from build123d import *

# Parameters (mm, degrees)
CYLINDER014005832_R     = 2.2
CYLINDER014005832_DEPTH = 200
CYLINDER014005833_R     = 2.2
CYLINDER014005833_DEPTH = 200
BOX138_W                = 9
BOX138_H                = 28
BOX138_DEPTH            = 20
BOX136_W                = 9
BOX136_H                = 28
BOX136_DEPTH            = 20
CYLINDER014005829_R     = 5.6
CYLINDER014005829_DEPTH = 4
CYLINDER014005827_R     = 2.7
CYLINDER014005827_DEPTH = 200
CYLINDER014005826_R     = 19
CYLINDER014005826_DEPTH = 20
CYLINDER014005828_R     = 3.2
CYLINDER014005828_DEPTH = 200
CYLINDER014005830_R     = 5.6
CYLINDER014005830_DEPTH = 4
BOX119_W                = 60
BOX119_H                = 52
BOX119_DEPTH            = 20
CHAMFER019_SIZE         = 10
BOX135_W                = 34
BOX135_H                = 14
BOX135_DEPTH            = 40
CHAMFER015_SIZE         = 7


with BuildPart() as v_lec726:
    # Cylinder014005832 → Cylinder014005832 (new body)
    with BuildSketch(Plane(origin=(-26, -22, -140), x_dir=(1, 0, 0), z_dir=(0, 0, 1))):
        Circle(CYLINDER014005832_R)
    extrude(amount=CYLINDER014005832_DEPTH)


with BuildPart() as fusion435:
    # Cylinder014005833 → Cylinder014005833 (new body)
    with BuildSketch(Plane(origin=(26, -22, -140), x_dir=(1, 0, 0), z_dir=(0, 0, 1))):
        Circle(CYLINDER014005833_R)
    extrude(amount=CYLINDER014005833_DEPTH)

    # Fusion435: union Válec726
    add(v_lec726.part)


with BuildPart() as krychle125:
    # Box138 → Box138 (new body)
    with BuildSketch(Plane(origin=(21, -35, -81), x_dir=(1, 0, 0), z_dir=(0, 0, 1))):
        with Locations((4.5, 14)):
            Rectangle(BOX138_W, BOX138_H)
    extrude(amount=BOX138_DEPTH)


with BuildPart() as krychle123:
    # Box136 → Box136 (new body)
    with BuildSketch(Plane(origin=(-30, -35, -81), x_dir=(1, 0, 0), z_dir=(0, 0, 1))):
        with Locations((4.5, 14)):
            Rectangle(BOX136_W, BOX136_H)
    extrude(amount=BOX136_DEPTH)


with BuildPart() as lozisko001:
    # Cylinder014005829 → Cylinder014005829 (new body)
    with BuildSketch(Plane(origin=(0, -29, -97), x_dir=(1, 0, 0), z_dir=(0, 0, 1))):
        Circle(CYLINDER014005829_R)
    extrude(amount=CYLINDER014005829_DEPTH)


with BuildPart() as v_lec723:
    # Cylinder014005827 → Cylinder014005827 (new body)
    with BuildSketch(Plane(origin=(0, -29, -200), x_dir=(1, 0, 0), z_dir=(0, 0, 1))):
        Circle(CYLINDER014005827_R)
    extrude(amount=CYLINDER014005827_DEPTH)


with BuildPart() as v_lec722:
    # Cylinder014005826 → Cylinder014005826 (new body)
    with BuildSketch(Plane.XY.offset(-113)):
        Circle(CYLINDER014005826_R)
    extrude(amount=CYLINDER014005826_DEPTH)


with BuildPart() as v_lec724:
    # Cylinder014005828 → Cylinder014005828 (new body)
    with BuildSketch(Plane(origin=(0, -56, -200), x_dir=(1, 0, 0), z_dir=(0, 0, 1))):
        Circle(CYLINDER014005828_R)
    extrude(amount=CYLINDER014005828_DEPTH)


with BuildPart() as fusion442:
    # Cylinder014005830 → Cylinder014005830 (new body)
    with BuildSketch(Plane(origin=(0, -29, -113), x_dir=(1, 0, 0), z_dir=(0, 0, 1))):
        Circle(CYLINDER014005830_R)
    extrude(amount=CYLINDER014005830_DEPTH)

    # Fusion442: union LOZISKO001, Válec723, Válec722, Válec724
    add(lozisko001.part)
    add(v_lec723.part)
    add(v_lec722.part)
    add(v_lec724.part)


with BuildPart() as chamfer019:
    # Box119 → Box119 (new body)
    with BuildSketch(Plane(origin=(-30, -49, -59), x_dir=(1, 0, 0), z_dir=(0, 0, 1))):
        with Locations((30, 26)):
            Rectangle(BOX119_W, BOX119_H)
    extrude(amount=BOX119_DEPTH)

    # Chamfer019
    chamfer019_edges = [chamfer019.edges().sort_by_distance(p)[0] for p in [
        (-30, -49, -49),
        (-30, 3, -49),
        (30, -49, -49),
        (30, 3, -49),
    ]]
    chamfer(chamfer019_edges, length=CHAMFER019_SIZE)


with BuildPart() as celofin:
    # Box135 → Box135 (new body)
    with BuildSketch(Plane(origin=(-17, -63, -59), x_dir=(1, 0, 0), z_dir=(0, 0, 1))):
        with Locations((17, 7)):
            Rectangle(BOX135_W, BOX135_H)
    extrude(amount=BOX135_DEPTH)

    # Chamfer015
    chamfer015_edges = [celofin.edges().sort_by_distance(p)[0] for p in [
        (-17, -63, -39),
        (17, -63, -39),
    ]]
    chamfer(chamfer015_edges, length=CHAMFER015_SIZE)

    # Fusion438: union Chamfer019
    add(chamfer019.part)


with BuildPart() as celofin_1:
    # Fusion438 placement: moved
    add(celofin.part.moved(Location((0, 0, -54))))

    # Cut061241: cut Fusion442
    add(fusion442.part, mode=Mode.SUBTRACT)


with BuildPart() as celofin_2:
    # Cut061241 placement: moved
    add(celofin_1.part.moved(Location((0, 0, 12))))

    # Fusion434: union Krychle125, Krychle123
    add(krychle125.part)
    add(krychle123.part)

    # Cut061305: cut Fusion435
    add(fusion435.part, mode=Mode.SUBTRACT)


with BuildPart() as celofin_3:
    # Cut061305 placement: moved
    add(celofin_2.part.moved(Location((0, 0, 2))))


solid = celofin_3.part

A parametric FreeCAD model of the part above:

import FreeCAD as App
import Part
import Sketcher

V = App.Vector


def edges_at(feature, points):
    """Names of the edges that pass closest to the given points."""
    edges = feature.Shape.Edges
    near = lambda p: min(range(len(edges)), key=lambda i: edges[i].distToShape(Part.Vertex(*p))[0])
    return sorted({f"Edge{near(p) + 1}" for p in points})

doc = App.newDocument("Part")
body = doc.addObject("PartDesign::Body", "Body")

sketch1 = body.newObject("Sketcher::SketchObject", "Sketch")
sketch1.AttachmentSupport = (doc.getObject("XY_Plane"), [""])
sketch1.MapMode = "FlatFace"
sketch1.AttachmentOffset = App.Placement(V(0, 0, -140), App.Rotation())
sketch1.addGeometry(Part.Circle(V(-26, -22, 0), V(0, 0, 1), 2.2), False)
sketch1.addConstraint([
    Sketcher.Constraint("Diameter", 0, 4.4),
    Sketcher.Constraint("DistanceX", 0, 3, -1, 1, 26.0),
    Sketcher.Constraint("DistanceY", 0, 3, -1, 1, 22.0),
])
pad1 = body.newObject("PartDesign::Pad", "Pad")
pad1.Profile = sketch1
pad1.Length = 200
body2 = doc.addObject("PartDesign::Body", "Body001")
body2.AllowCompound = True

sketch2 = body2.newObject("Sketcher::SketchObject", "Sketch001")
sketch2.AttachmentSupport = (doc.getObject("XY_Plane001"), [""])
sketch2.MapMode = "FlatFace"
sketch2.AttachmentOffset = App.Placement(V(0, 0, -140), App.Rotation())
sketch2.addGeometry(Part.Circle(V(26, -22, 0), V(0, 0, 1), 2.2), False)
sketch2.addConstraint([
    Sketcher.Constraint("Diameter", 0, 4.4),
    Sketcher.Constraint("DistanceX", -1, 1, 0, 3, 26.0),
    Sketcher.Constraint("DistanceY", 0, 3, -1, 1, 22.0),
])
pad2 = body2.newObject("PartDesign::Pad", "Pad001")
pad2.Profile = sketch2
pad2.Length = 200
doc.recompute()

boolean = body2.newObject("PartDesign::Boolean", "Boolean")
boolean.Type = "Fuse"
boolean.addObjects([body])
body3 = doc.addObject("PartDesign::Body", "Body002")

sketch3 = body3.newObject("Sketcher::SketchObject", "Sketch002")
sketch3.AttachmentSupport = (doc.getObject("XY_Plane002"), [""])
sketch3.MapMode = "FlatFace"
sketch3.AttachmentOffset = App.Placement(V(0, 0, -81), App.Rotation())
sketch3.addGeometry([
    Part.LineSegment(V(21, -7, 0), V(21, -35, 0)),
    Part.LineSegment(V(21, -35, 0), V(30, -35, 0)),
    Part.LineSegment(V(30, -35, 0), V(30, -7, 0)),
    Part.LineSegment(V(30, -7, 0), V(21, -7, 0)),
], False)
sketch3.addConstraint([
    Sketcher.Constraint("Coincident", 0, 2, 1, 1),
    Sketcher.Constraint("Coincident", 1, 2, 2, 1),
    Sketcher.Constraint("Coincident", 2, 2, 3, 1),
    Sketcher.Constraint("Coincident", 3, 2, 0, 1),
    Sketcher.Constraint("Vertical", 0),
    Sketcher.Constraint("Horizontal", 1),
    Sketcher.Constraint("Vertical", 2),
    Sketcher.Constraint("Horizontal", 3),
    Sketcher.Constraint("DistanceX", 1, 1, 1, 2, 9.0),
    Sketcher.Constraint("DistanceY", 0, 2, 0, 1, 28.0),
    Sketcher.Constraint("DistanceX", -1, 1, 0, 2, 21.0),
    Sketcher.Constraint("DistanceY", 0, 2, -1, 1, 35.0),
])
pad3 = body3.newObject("PartDesign::Pad", "Pad002")
pad3.Profile = sketch3
pad3.Length = 20
body4 = doc.addObject("PartDesign::Body", "Body003")

sketch4 = body4.newObject("Sketcher::SketchObject", "Sketch003")
sketch4.AttachmentSupport = (doc.getObject("XY_Plane003"), [""])
sketch4.MapMode = "FlatFace"
sketch4.AttachmentOffset = App.Placement(V(0, 0, -81), App.Rotation())
sketch4.addGeometry([
    Part.LineSegment(V(-30, -7, 0), V(-30, -35, 0)),
    Part.LineSegment(V(-30, -35, 0), V(-21, -35, 0)),
    Part.LineSegment(V(-21, -35, 0), V(-21, -7, 0)),
    Part.LineSegment(V(-21, -7, 0), V(-30, -7, 0)),
], False)
sketch4.addConstraint([
    Sketcher.Constraint("Coincident", 0, 2, 1, 1),
    Sketcher.Constraint("Coincident", 1, 2, 2, 1),
    Sketcher.Constraint("Coincident", 2, 2, 3, 1),
    Sketcher.Constraint("Coincident", 3, 2, 0, 1),
    Sketcher.Constraint("Vertical", 0),
    Sketcher.Constraint("Horizontal", 1),
    Sketcher.Constraint("Vertical", 2),
    Sketcher.Constraint("Horizontal", 3),
    Sketcher.Constraint("DistanceX", 1, 1, 1, 2, 9.0),
    Sketcher.Constraint("DistanceY", 0, 2, 0, 1, 28.0),
    Sketcher.Constraint("DistanceX", 0, 2, -1, 1, 30.0),
    Sketcher.Constraint("DistanceY", 0, 2, -1, 1, 35.0),
])
pad4 = body4.newObject("PartDesign::Pad", "Pad003")
pad4.Profile = sketch4
pad4.Length = 20
body5 = doc.addObject("PartDesign::Body", "Body004")

sketch5 = body5.newObject("Sketcher::SketchObject", "Sketch004")
sketch5.AttachmentSupport = (doc.getObject("XY_Plane004"), [""])
sketch5.MapMode = "FlatFace"
sketch5.AttachmentOffset = App.Placement(V(0, 0, -97), App.Rotation())
sketch5.addGeometry(Part.Circle(V(0, -29, 0), V(0, 0, 1), 5.6), False)
sketch5.addConstraint([
    Sketcher.Constraint("PointOnObject", 0, 3, -2),
    Sketcher.Constraint("Diameter", 0, 11.2),
    Sketcher.Constraint("DistanceY", 0, 3, -1, 1, 29.0),
])
pad5 = body5.newObject("PartDesign::Pad", "Pad004")
pad5.Profile = sketch5
pad5.Length = 4
body6 = doc.addObject("PartDesign::Body", "Body005")

sketch6 = body6.newObject("Sketcher::SketchObject", "Sketch005")
sketch6.AttachmentSupport = (doc.getObject("XY_Plane005"), [""])
sketch6.MapMode = "FlatFace"
sketch6.AttachmentOffset = App.Placement(V(0, 0, -200), App.Rotation())
sketch6.addGeometry(Part.Circle(V(0, -29, 0), V(0, 0, 1), 2.7), False)
sketch6.addConstraint([
    Sketcher.Constraint("PointOnObject", 0, 3, -2),
    Sketcher.Constraint("Diameter", 0, 5.4),
    Sketcher.Constraint("DistanceY", 0, 3, -1, 1, 29.0),
])
pad6 = body6.newObject("PartDesign::Pad", "Pad005")
pad6.Profile = sketch6
pad6.Length = 200
body7 = doc.addObject("PartDesign::Body", "Body006")

sketch7 = body7.newObject("Sketcher::SketchObject", "Sketch006")
sketch7.AttachmentSupport = (doc.getObject("XY_Plane006"), [""])
sketch7.MapMode = "FlatFace"
sketch7.AttachmentOffset = App.Placement(V(0, 0, -113), App.Rotation())
sketch7.addGeometry(Part.Circle(V(0, 0, 0), V(0, 0, 1), 19), False)
sketch7.addConstraint([
    Sketcher.Constraint("Coincident", 0, 3, -1, 1),
    Sketcher.Constraint("Diameter", 0, 38.0),
])
pad7 = body7.newObject("PartDesign::Pad", "Pad006")
pad7.Profile = sketch7
pad7.Length = 20
body8 = doc.addObject("PartDesign::Body", "Body007")

sketch8 = body8.newObject("Sketcher::SketchObject", "Sketch007")
sketch8.AttachmentSupport = (doc.getObject("XY_Plane007"), [""])
sketch8.MapMode = "FlatFace"
sketch8.AttachmentOffset = App.Placement(V(0, 0, -200), App.Rotation())
sketch8.addGeometry(Part.Circle(V(0, -56, 0), V(0, 0, 1), 3.2), False)
sketch8.addConstraint([
    Sketcher.Constraint("PointOnObject", 0, 3, -2),
    Sketcher.Constraint("Diameter", 0, 6.4),
    Sketcher.Constraint("DistanceY", 0, 3, -1, 1, 56.0),
])
pad8 = body8.newObject("PartDesign::Pad", "Pad007")
pad8.Profile = sketch8
pad8.Length = 200
body9 = doc.addObject("PartDesign::Body", "Body008")
body9.AllowCompound = True

sketch9 = body9.newObject("Sketcher::SketchObject", "Sketch008")
sketch9.AttachmentSupport = (doc.getObject("XY_Plane008"), [""])
sketch9.MapMode = "FlatFace"
sketch9.AttachmentOffset = App.Placement(V(0, 0, -113), App.Rotation())
sketch9.addGeometry(Part.Circle(V(0, -29, 0), V(0, 0, 1), 5.6), False)
sketch9.addConstraint([
    Sketcher.Constraint("PointOnObject", 0, 3, -2),
    Sketcher.Constraint("Diameter", 0, 11.2),
    Sketcher.Constraint("DistanceY", 0, 3, -1, 1, 29.0),
])
pad9 = body9.newObject("PartDesign::Pad", "Pad008")
pad9.Profile = sketch9
pad9.Length = 4
doc.recompute()

boolean2 = body9.newObject("PartDesign::Boolean", "Boolean001")
boolean2.Type = "Fuse"
boolean2.addObjects([body5])
doc.recompute()

boolean3 = body9.newObject("PartDesign::Boolean", "Boolean002")
boolean3.Type = "Fuse"
boolean3.addObjects([body6])
doc.recompute()

boolean4 = body9.newObject("PartDesign::Boolean", "Boolean003")
boolean4.Type = "Fuse"
boolean4.addObjects([body7])
doc.recompute()

boolean5 = body9.newObject("PartDesign::Boolean", "Boolean004")
boolean5.Type = "Fuse"
boolean5.addObjects([body8])
body10 = doc.addObject("PartDesign::Body", "Body009")

sketch10 = body10.newObject("Sketcher::SketchObject", "Sketch009")
sketch10.AttachmentSupport = (doc.getObject("XY_Plane009"), [""])
sketch10.MapMode = "FlatFace"
sketch10.AttachmentOffset = App.Placement(V(0, 0, -59), App.Rotation())
sketch10.addGeometry([
    Part.LineSegment(V(-30, 3, 0), V(-30, -49, 0)),
    Part.LineSegment(V(-30, -49, 0), V(30, -49, 0)),
    Part.LineSegment(V(30, -49, 0), V(30, 3, 0)),
    Part.LineSegment(V(30, 3, 0), V(-30, 3, 0)),
], False)
sketch10.addConstraint([
    Sketcher.Constraint("Coincident", 0, 2, 1, 1),
    Sketcher.Constraint("Coincident", 1, 2, 2, 1),
    Sketcher.Constraint("Coincident", 2, 2, 3, 1),
    Sketcher.Constraint("Coincident", 3, 2, 0, 1),
    Sketcher.Constraint("Vertical", 0),
    Sketcher.Constraint("Horizontal", 1),
    Sketcher.Constraint("Vertical", 2),
    Sketcher.Constraint("Horizontal", 3),
    Sketcher.Constraint("DistanceX", 1, 1, 1, 2, 60.0),
    Sketcher.Constraint("DistanceY", 0, 2, 0, 1, 52.0),
    Sketcher.Constraint("DistanceX", 0, 2, -1, 1, 30.0),
    Sketcher.Constraint("DistanceY", 0, 2, -1, 1, 49.0),
])
pad10 = body10.newObject("PartDesign::Pad", "Pad009")
pad10.Profile = sketch10
pad10.Length = 20
doc.recompute()

chamfer = body10.newObject("PartDesign::Chamfer", "Chamfer")
chamfer.Base = (pad10, edges_at(pad10, [
    (-30, -49, -49),
    (-30, 3, -49),
    (30, -49, -49),
    (30, 3, -49),
]))
chamfer.Size = 10
body11 = doc.addObject("PartDesign::Body", "Body010")

sketch11 = body11.newObject("Sketcher::SketchObject", "Sketch010")
sketch11.AttachmentSupport = (doc.getObject("XY_Plane010"), [""])
sketch11.MapMode = "FlatFace"
sketch11.AttachmentOffset = App.Placement(V(0, 0, -59), App.Rotation())
sketch11.addGeometry([
    Part.LineSegment(V(-17, -49, 0), V(-17, -63, 0)),
    Part.LineSegment(V(-17, -63, 0), V(17, -63, 0)),
    Part.LineSegment(V(17, -63, 0), V(17, -49, 0)),
    Part.LineSegment(V(17, -49, 0), V(-17, -49, 0)),
], False)
sketch11.addConstraint([
    Sketcher.Constraint("Coincident", 0, 2, 1, 1),
    Sketcher.Constraint("Coincident", 1, 2, 2, 1),
    Sketcher.Constraint("Coincident", 2, 2, 3, 1),
    Sketcher.Constraint("Coincident", 3, 2, 0, 1),
    Sketcher.Constraint("Vertical", 0),
    Sketcher.Constraint("Horizontal", 1),
    Sketcher.Constraint("Vertical", 2),
    Sketcher.Constraint("Horizontal", 3),
    Sketcher.Constraint("DistanceX", 1, 1, 1, 2, 34.0),
    Sketcher.Constraint("DistanceY", 0, 2, 0, 1, 14.0),
    Sketcher.Constraint("DistanceX", 0, 2, -1, 1, 17.0),
    Sketcher.Constraint("DistanceY", 0, 2, -1, 1, 63.0),
])
pad11 = body11.newObject("PartDesign::Pad", "Pad010")
pad11.Profile = sketch11
pad11.Length = 40
doc.recompute()

chamfer2 = body11.newObject("PartDesign::Chamfer", "Chamfer001")
chamfer2.Base = (pad11, edges_at(pad11, [(-17, -63, -39), (17, -63, -39)]))
chamfer2.Size = 7
doc.recompute()

boolean6 = body11.newObject("PartDesign::Boolean", "Boolean005")
boolean6.Type = "Fuse"
boolean6.addObjects([body10])
body12 = doc.addObject("PartDesign::Body", "Body011")
doc.recompute()

body11.Placement = App.Placement(V(0, 0, -54), App.Rotation(V(0, 0, 1), 0))
boolean7 = body12.newObject("PartDesign::Boolean", "Boolean006")
boolean7.Type = "Fuse"
boolean7.addObjects([body11])
doc.recompute()

boolean8 = body12.newObject("PartDesign::Boolean", "Boolean007")
boolean8.Type = "Cut"
boolean8.addObjects([body9])
body13 = doc.addObject("PartDesign::Body", "Body012")
doc.recompute()

body12.Placement = App.Placement(V(0, 0, 12), App.Rotation(V(0, 0, 1), 0))
boolean9 = body13.newObject("PartDesign::Boolean", "Boolean008")
boolean9.Type = "Fuse"
boolean9.addObjects([body12])
doc.recompute()

boolean10 = body13.newObject("PartDesign::Boolean", "Boolean009")
boolean10.Type = "Fuse"
boolean10.addObjects([body3])
doc.recompute()

boolean11 = body13.newObject("PartDesign::Boolean", "Boolean010")
boolean11.Type = "Fuse"
boolean11.addObjects([body4])
doc.recompute()

boolean12 = body13.newObject("PartDesign::Boolean", "Boolean011")
boolean12.Type = "Cut"
boolean12.addObjects([body2])
body14 = doc.addObject("PartDesign::Body", "Body013")
doc.recompute()

body13.Placement = App.Placement(V(0, 0, 2), App.Rotation(V(0, 0, 1), 0))
boolean13 = body14.newObject("PartDesign::Boolean", "Boolean012")
boolean13.Type = "Fuse"
boolean13.addObjects([body13])

doc.recompute()
